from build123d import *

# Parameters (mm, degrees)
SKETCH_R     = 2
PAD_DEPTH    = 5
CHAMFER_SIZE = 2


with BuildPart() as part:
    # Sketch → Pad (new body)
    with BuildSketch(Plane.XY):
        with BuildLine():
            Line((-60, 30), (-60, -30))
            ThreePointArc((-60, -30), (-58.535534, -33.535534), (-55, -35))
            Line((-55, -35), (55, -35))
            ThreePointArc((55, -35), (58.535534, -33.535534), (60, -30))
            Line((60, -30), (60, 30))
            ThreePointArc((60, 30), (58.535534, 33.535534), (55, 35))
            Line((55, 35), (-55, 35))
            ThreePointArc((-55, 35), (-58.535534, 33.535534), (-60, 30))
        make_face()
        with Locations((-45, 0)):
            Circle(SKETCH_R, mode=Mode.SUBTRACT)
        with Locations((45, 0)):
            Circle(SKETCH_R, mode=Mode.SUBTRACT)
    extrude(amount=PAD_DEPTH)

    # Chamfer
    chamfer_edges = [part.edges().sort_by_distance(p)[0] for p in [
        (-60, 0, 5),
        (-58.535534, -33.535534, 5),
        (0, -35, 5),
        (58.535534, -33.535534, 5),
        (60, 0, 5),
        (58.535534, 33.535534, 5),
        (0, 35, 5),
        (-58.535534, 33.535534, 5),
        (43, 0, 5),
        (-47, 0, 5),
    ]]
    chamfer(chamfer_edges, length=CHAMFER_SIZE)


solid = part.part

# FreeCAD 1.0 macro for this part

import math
import FreeCAD as App
import Part
import Sketcher
from FreeCAD import Vector
Q = App.Units.Quantity


def edges_at(feature, points):
    """Names of the edges that pass closest to the given points."""
    edges = feature.Shape.Edges
    near = lambda p: min(range(len(edges)), key=lambda i: edges[i].distToShape(Part.Vertex(*p))[0])
    return sorted({f"Edge{near(p) + 1}" for p in points})

doc = App.newDocument("Part")
body = doc.addObject("PartDesign::Body", "Body")

# Sketch on XY plane
sketch1 = doc.addObject("Sketcher::SketchObject", "Sketch")
body.addObject(sketch1)
sketch1.AttachmentSupport = (doc.XY_Plane, [""])
sketch1.MapMode = "FlatFace"
sketch1.addGeometry([
    Part.LineSegment(Vector(-60, 30, 0), Vector(-60, -30, 0)),  # 0
    Part.ArcOfCircle(Part.Circle(Vector(-55, -30, 0), Vector(0, 0, 1), 5), math.radians(180), math.radians(270)),  # 1
    Part.LineSegment(Vector(-55, -35, 0), Vector(55, -35, 0)),  # 2
    Part.ArcOfCircle(Part.Circle(Vector(55, -30, 0), Vector(0, 0, 1), 5), math.radians(-90), math.radians(0)),  # 3
    Part.LineSegment(Vector(60, -30, 0), Vector(60, 30, 0)),  # 4
    Part.ArcOfCircle(Part.Circle(Vector(55, 30, 0), Vector(0, 0, 1), 5), math.radians(0), math.radians(90)),  # 5
    Part.LineSegment(Vector(55, 35, 0), Vector(-55, 35, 0)),  # 6
    Part.ArcOfCircle(Part.Circle(Vector(-55, 30, 0), Vector(0, 0, 1), 5), math.radians(90), math.radians(180)),  # 7
    Part.Circle(Vector(-45, 0, 0), Vector(0, 0, 1), 2),  # 8
    Part.Circle(Vector(45, 0, 0), Vector(0, 0, 1), 2),  # 9
], False)
sketch1.addConstraint([
    Sketcher.Constraint("Tangent", 0, 2, 1, 1),
    Sketcher.Constraint("Tangent", 1, 2, 2, 1),
    Sketcher.Constraint("Tangent", 2, 2, 3, 1),
    Sketcher.Constraint("Tangent", 3, 2, 4, 1),
    Sketcher.Constraint("Tangent", 4, 2, 5, 1),
    Sketcher.Constraint("Tangent", 5, 2, 6, 1),
    Sketcher.Constraint("Tangent", 6, 2, 7, 1),
    Sketcher.Constraint("Tangent", 7, 2, 0, 1),
    Sketcher.Constraint("Vertical", 0),
    Sketcher.Constraint("Horizontal", 2),
    Sketcher.Constraint("Vertical", 4),
    Sketcher.Constraint("Horizontal", 6),
    Sketcher.Constraint("Equal", 1, 3),
    Sketcher.Constraint("Equal", 3, 5),
    Sketcher.Constraint("Equal", 5, 7),
    Sketcher.Constraint("Equal", 8, 9),
    Sketcher.Constraint("Symmetric", 1, 3, 5, 3, -1, 1),
    Sketcher.Constraint("Symmetric", 8, 3, 9, 3, -1, 1),
    Sketcher.Constraint("PointOnObject", 8, 3, -1),
    Sketcher.Constraint("Diameter", 8, Q("4 mm")),
    Sketcher.Constraint("Radius", 1, Q("5 mm")),
    Sketcher.Constraint("DistanceX", 2, 1, 2, 2, Q("110 mm")),
    Sketcher.Constraint("DistanceY", 0, 2, 0, 1, Q("60 mm")),
    Sketcher.Constraint("DistanceX", 8, 3, -1, 1, Q("45 mm")),
])
pad1 = doc.addObject("PartDesign::Pad", "Pad")
body.addObject(pad1)
pad1.Profile = sketch1
pad1.Length = 5
doc.recompute()

chamfer = doc.addObject("PartDesign::Chamfer", "Chamfer")
body.addObject(chamfer)
chamfer.Base = (pad1, edges_at(pad1, [
    (-60, 0, 5),
    (-58.536, -33.536, 5),
    (0, -35, 5),
    (58.536, -33.536, 5),
    (60, 0, 5),
    (58.536, 33.536, 5),
    (0, 35, 5),
    (-58.536, 33.536, 5),
    (43, 0, 5),
    (-47, 0, 5),
]))
chamfer.Size = 2

doc.recompute()
